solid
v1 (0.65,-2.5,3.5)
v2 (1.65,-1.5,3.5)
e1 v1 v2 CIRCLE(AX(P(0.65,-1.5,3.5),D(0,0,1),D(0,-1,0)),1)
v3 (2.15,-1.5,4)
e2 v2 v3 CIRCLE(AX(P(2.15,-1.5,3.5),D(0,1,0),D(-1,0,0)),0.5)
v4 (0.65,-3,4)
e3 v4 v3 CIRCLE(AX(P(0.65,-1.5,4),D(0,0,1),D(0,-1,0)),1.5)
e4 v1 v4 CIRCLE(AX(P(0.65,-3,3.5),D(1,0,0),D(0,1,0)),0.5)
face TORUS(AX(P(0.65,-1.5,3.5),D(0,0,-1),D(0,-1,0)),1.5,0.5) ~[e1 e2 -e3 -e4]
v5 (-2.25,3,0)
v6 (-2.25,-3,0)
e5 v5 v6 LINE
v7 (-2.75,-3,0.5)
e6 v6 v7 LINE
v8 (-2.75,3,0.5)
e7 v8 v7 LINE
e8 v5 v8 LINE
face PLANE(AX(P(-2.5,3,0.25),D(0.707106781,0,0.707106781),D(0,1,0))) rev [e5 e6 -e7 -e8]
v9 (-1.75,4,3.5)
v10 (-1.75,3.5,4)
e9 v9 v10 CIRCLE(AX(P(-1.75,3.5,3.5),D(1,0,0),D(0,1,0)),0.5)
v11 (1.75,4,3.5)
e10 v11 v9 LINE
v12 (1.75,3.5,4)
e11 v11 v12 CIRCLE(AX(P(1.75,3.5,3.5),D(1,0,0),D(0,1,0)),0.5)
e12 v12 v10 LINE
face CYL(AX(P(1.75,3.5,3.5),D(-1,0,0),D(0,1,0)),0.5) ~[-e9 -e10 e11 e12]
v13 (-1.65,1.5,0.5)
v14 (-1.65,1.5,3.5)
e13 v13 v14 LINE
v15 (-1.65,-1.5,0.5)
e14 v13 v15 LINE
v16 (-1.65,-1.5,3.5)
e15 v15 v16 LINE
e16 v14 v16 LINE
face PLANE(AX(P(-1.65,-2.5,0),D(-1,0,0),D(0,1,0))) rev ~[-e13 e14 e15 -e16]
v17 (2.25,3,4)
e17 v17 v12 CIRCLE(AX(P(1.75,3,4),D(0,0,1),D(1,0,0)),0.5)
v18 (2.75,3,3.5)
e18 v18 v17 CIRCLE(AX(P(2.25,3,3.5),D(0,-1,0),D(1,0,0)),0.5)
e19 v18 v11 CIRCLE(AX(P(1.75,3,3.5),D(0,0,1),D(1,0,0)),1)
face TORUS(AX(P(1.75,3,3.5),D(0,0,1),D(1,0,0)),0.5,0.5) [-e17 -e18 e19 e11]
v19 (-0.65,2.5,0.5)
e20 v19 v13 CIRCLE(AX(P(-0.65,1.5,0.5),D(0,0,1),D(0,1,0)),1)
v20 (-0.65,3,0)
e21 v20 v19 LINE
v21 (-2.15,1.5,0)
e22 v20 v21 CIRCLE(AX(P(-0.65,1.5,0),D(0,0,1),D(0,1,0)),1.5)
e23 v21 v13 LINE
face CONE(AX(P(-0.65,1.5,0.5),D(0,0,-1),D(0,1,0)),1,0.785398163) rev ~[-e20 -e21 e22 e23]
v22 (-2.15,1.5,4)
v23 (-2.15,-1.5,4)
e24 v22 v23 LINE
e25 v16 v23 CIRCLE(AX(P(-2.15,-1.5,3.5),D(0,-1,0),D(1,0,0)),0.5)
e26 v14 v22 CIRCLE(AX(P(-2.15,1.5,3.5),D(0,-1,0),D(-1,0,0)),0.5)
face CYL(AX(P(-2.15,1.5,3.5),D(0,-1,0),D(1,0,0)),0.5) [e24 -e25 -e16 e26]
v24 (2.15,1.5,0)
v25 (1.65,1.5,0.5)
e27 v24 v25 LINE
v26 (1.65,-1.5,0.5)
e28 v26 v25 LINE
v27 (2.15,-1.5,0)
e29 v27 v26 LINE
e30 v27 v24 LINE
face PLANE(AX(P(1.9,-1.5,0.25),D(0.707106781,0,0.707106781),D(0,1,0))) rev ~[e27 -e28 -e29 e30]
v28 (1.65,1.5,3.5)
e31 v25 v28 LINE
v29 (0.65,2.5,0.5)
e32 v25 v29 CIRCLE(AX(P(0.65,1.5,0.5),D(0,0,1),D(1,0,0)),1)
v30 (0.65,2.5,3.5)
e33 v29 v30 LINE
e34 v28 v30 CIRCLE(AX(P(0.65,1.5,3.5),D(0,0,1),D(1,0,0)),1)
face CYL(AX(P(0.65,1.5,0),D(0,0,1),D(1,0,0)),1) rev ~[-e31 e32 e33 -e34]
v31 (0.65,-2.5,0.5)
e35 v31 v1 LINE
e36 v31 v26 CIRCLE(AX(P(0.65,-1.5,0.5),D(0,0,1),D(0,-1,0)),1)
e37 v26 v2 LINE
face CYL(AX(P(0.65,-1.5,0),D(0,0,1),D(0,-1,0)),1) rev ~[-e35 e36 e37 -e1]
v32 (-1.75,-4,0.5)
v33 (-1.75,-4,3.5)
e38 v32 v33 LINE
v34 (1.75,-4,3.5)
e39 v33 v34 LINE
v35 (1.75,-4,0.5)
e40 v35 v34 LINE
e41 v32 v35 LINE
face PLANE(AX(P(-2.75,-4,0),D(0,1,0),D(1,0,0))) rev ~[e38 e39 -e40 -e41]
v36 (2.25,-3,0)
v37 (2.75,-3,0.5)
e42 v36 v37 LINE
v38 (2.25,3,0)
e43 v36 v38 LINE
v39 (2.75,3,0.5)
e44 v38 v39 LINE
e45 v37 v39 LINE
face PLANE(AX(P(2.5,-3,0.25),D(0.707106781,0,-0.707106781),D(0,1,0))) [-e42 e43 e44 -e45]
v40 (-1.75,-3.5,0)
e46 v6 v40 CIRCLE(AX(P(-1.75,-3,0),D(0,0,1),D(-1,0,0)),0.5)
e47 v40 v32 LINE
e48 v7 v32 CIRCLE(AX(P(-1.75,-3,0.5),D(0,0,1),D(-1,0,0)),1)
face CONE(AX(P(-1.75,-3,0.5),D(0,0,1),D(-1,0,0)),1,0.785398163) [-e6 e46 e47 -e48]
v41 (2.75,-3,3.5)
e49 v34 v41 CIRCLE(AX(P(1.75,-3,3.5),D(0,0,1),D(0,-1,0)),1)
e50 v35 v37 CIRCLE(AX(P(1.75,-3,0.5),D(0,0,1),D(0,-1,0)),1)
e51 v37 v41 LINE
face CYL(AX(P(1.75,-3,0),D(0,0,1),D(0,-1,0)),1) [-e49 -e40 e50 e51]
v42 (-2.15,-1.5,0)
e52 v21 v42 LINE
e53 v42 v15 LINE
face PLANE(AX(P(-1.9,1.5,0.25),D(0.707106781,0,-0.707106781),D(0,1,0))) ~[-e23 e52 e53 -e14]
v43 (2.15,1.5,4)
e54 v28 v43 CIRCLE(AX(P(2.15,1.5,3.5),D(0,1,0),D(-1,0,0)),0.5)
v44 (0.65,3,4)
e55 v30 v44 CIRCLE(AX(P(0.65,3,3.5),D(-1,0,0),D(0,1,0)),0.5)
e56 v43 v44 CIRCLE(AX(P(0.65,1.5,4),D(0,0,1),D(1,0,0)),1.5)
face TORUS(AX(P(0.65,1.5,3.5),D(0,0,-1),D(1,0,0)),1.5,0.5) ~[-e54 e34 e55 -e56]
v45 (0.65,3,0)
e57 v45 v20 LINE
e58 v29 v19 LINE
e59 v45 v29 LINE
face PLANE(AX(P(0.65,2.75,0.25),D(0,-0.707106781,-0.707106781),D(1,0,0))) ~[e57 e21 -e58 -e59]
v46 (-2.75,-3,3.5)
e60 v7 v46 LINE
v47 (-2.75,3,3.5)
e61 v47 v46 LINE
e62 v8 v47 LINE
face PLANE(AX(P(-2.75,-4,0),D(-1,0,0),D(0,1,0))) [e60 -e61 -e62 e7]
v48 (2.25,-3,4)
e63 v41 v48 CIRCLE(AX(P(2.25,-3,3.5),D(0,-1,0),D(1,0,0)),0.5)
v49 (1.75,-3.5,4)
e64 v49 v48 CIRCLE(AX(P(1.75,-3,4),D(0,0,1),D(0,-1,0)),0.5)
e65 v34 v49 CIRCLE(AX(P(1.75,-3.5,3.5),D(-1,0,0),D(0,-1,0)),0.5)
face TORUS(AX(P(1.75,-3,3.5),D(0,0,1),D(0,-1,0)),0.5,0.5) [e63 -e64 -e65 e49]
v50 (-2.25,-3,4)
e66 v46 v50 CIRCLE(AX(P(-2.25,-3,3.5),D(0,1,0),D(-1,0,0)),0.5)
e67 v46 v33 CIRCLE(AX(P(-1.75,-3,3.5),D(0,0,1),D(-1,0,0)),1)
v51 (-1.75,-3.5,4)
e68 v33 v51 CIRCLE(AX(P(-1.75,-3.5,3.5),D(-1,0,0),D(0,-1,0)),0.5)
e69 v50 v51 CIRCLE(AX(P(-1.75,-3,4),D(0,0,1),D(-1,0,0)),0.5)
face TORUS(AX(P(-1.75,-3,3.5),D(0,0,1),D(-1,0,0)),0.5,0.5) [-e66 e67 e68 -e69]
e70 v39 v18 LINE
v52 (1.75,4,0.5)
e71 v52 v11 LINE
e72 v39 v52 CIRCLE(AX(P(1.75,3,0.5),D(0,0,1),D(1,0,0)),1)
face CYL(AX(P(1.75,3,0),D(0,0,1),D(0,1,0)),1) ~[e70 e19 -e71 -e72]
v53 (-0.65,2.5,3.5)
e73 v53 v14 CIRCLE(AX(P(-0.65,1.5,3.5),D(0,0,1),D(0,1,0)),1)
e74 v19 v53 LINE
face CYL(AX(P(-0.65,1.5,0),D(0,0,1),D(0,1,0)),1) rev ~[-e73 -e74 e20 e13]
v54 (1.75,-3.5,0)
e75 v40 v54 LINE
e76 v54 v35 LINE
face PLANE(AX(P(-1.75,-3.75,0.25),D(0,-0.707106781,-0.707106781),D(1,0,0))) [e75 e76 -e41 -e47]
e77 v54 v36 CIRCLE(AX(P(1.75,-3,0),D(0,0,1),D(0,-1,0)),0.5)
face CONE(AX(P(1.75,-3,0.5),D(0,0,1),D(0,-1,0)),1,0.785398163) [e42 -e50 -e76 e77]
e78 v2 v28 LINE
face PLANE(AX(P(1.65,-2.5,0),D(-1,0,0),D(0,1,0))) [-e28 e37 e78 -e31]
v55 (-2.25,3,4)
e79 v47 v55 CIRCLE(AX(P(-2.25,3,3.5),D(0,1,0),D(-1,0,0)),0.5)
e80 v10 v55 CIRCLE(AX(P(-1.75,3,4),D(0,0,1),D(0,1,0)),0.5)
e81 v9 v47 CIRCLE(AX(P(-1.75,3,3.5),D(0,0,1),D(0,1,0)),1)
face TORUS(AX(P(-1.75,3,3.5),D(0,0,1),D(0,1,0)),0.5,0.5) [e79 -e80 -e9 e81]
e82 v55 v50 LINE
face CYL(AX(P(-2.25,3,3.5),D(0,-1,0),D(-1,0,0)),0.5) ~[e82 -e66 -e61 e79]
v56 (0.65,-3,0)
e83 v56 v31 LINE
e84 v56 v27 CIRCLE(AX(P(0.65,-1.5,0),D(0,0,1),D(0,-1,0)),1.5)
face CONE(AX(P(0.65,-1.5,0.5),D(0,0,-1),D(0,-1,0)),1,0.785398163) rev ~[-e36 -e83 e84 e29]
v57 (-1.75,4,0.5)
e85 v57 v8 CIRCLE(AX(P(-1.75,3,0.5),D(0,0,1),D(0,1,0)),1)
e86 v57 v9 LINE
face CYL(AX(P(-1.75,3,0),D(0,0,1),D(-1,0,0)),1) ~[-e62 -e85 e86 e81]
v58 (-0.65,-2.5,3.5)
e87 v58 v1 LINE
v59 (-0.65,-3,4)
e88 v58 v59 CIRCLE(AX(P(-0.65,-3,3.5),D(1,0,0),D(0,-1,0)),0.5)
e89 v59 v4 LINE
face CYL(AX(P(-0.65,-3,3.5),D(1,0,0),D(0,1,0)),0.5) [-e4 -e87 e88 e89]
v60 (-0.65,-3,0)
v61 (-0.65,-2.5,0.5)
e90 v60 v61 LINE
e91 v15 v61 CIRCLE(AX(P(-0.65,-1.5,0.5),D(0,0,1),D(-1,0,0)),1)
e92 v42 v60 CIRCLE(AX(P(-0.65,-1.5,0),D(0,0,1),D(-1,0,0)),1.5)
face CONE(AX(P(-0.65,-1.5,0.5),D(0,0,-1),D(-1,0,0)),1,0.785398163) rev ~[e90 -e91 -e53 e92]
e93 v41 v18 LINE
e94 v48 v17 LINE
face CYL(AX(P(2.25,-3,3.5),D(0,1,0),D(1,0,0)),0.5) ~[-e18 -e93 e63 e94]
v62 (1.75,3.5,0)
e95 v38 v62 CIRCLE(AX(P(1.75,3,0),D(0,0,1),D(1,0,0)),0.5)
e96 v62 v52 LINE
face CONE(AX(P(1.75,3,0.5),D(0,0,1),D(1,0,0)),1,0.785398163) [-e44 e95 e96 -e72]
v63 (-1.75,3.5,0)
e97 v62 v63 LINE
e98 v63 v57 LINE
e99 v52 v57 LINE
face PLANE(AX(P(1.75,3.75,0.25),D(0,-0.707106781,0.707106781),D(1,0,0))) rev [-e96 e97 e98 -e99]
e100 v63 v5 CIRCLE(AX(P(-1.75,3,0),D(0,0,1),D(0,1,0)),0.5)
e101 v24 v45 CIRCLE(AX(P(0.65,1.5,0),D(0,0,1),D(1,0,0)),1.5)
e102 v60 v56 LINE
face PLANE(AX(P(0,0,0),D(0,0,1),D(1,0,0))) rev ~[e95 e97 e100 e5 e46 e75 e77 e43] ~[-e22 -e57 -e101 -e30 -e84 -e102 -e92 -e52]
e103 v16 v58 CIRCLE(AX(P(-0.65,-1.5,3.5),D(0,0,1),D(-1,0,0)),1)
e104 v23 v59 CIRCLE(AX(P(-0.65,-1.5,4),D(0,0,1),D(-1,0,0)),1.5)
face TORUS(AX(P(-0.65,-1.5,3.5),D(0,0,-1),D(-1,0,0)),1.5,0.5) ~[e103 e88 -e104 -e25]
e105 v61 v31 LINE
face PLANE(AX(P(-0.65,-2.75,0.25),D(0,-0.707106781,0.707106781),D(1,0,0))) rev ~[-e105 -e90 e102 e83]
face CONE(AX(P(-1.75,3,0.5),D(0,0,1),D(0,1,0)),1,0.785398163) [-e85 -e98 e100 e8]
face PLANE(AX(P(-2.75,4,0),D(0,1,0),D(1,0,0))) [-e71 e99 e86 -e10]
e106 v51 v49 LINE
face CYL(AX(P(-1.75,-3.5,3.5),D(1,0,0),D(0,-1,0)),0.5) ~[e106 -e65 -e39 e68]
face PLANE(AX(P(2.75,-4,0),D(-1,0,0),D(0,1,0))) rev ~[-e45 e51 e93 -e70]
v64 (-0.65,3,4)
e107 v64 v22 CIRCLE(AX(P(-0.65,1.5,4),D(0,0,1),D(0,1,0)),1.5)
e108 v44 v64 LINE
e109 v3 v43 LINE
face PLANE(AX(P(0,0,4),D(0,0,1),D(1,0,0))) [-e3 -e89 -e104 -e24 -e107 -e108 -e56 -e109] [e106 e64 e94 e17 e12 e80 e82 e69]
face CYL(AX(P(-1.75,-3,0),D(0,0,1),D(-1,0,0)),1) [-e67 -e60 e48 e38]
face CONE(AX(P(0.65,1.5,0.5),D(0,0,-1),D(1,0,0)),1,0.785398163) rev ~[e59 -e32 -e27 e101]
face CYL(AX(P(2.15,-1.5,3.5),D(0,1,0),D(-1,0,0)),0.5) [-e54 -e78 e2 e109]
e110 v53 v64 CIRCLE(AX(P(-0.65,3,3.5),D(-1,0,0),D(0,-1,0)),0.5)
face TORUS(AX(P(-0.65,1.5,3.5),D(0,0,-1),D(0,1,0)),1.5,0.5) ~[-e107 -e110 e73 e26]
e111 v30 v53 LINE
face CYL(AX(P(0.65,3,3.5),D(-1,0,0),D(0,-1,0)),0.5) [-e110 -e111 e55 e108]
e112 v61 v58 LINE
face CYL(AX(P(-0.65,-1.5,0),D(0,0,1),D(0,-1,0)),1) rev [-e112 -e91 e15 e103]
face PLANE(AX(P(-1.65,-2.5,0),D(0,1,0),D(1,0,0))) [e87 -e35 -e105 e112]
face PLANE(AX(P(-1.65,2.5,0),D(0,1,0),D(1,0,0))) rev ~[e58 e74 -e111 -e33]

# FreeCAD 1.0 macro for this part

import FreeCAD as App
import Part
import Sketcher
from FreeCAD import Vector


def edges_at(feature, points):
    """Names of the edges that pass closest to the given points."""
    edges = feature.Shape.Edges
    near = lambda p: min(range(len(edges)), key=lambda i: edges[i].distToShape(Part.Vertex(*p))[0])
    return sorted({f"Edge{near(p) + 1}" for p in points})


def add_polygon(sketch, points):
    """Adds a closed chain of lines whose ends are joined by coincident constraints."""
    first, n = sketch.GeometryCount, len(points)
    for a, b in zip(points, points[1:] + points[:1]):
        sketch.addGeometry(Part.LineSegment(App.Vector(*a, 0), App.Vector(*b, 0)), False)
    for i in range(n):
        sketch.addConstraint(Sketcher.Constraint("Coincident", first + i, 2, first + (i + 1) % n, 1))

doc = App.newDocument("Part")
body = doc.addObject("PartDesign::Body", "Body")

# Sketch on XY plane
sketch1 = body.newObject("Sketcher::SketchObject", "Sketch")
sketch1.AttachmentSupport = (doc.getObject("XY_Plane"), [""])
sketch1.MapMode = "FlatFace"
add_polygon(sketch1, [(-2.8, 4), (-2.8, -4), (2.8, -4), (2.8, 4)])  # lines 0-3
add_polygon(sketch1, [(1.6, -2.5), (-1.6, -2.5), (-1.6, 2.5), (1.6, 2.5)])  # lines 4-7
sketch1.addConstraint(Sketcher.Constraint("Vertical", 0))
sketch1.addConstraint(Sketcher.Constraint("Horizontal", 1))
sketch1.addConstraint(Sketcher.Constraint("Vertical", 2))
sketch1.addConstraint(Sketcher.Constraint("Horizontal", 3))
sketch1.addConstraint(Sketcher.Constraint("Horizontal", 4))
sketch1.addConstraint(Sketcher.Constraint("Vertical", 5))
sketch1.addConstraint(Sketcher.Constraint("Horizontal", 6))
sketch1.addConstraint(Sketcher.Constraint("Vertical", 7))
sketch1.addConstraint(Sketcher.Constraint("Symmetric", 0, 2, 2, 2, -1, 1))
sketch1.addConstraint(Sketcher.Constraint("Symmetric", 4, 2, 6, 2, -1, 1))
sketch1.addConstraint(Sketcher.Constraint("DistanceY", 0, 2, 0, 1, 8.0))
sketch1.addConstraint(Sketcher.Constraint("DistanceY", 5, 1, 5, 2, 5.0))
sketch1.addConstraint(Sketcher.Constraint("DistanceX", 1, 1, 1, 2, 5.5))
sketch1.addConstraint(Sketcher.Constraint("DistanceX", 4, 2, 4, 1, 3.3))
pad1 = body.newObject("PartDesign::Pad", "Pad")
pad1.Profile = sketch1
pad1.Length = 4
doc.recompute()

fillet = body.newObject("PartDesign::Fillet", "Fillet")
fillet.Base = (pad1, edges_at(pad1, [
    (-2.75, -4, 2),
    (2.75, -4, 2),
    (-2.75, 4, 2),
    (2.75, 4, 2),
]))
fillet.Radius = 1
doc.recompute()

fillet2 = body.newObject("PartDesign::Fillet", "Fillet001")
fillet2.Base = (fillet, edges_at(fillet, [
    (1.65, 2.5, 2),
    (1.65, -2.5, 2),
    (-1.65, -2.5, 2),
    (-1.65, 2.5, 2),
]))
fillet2.Radius = 1
doc.recompute()

fillet3 = body.newObject("PartDesign::Fillet", "Fillet002")
fillet3.Base = (fillet2, edges_at(fillet2, [
    (1.65, 0, 4),
    (1.357, 2.207, 4),
    (1.357, -2.207, 4),
    (0, 2.5, 4),
    (0, -2.5, 4),
    (-1.357, 2.207, 4),
    (-1.357, -2.207, 4),
    (-1.65, 0, 4),
    (0, -4, 4),
    (-2.457, -3.707, 4),
    (2.457, -3.707, 4),
    (-2.75, 0, 4),
    (2.75, 0, 4),
    (-2.457, 3.707, 4),
    (2.457, 3.707, 4),
    (0, 4, 4),
]))
fillet3.Radius = 0.5
doc.recompute()

chamfer = body.newObject("PartDesign::Chamfer", "Chamfer")
chamfer.Base = (fillet3, edges_at(fillet3, [
    (1.65, 0, 0),
    (1.357, 2.207, 0),
    (1.357, -2.207, 0),
    (0, 2.5, 0),
    (0, -2.5, 0),
    (-1.357, 2.207, 0),
    (-1.357, -2.207, 0),
    (-1.65, 0, 0),
    (0, -4, 0),
    (-2.457, -3.707, 0),
    (2.457, -3.707, 0),
    (-2.75, 0, 0),
    (2.75, 0, 0),
    (-2.457, 3.707, 0),
    (2.457, 3.707, 0),
    (0, 4, 0),
]))
chamfer.Size = 0.5

doc.recompute()
